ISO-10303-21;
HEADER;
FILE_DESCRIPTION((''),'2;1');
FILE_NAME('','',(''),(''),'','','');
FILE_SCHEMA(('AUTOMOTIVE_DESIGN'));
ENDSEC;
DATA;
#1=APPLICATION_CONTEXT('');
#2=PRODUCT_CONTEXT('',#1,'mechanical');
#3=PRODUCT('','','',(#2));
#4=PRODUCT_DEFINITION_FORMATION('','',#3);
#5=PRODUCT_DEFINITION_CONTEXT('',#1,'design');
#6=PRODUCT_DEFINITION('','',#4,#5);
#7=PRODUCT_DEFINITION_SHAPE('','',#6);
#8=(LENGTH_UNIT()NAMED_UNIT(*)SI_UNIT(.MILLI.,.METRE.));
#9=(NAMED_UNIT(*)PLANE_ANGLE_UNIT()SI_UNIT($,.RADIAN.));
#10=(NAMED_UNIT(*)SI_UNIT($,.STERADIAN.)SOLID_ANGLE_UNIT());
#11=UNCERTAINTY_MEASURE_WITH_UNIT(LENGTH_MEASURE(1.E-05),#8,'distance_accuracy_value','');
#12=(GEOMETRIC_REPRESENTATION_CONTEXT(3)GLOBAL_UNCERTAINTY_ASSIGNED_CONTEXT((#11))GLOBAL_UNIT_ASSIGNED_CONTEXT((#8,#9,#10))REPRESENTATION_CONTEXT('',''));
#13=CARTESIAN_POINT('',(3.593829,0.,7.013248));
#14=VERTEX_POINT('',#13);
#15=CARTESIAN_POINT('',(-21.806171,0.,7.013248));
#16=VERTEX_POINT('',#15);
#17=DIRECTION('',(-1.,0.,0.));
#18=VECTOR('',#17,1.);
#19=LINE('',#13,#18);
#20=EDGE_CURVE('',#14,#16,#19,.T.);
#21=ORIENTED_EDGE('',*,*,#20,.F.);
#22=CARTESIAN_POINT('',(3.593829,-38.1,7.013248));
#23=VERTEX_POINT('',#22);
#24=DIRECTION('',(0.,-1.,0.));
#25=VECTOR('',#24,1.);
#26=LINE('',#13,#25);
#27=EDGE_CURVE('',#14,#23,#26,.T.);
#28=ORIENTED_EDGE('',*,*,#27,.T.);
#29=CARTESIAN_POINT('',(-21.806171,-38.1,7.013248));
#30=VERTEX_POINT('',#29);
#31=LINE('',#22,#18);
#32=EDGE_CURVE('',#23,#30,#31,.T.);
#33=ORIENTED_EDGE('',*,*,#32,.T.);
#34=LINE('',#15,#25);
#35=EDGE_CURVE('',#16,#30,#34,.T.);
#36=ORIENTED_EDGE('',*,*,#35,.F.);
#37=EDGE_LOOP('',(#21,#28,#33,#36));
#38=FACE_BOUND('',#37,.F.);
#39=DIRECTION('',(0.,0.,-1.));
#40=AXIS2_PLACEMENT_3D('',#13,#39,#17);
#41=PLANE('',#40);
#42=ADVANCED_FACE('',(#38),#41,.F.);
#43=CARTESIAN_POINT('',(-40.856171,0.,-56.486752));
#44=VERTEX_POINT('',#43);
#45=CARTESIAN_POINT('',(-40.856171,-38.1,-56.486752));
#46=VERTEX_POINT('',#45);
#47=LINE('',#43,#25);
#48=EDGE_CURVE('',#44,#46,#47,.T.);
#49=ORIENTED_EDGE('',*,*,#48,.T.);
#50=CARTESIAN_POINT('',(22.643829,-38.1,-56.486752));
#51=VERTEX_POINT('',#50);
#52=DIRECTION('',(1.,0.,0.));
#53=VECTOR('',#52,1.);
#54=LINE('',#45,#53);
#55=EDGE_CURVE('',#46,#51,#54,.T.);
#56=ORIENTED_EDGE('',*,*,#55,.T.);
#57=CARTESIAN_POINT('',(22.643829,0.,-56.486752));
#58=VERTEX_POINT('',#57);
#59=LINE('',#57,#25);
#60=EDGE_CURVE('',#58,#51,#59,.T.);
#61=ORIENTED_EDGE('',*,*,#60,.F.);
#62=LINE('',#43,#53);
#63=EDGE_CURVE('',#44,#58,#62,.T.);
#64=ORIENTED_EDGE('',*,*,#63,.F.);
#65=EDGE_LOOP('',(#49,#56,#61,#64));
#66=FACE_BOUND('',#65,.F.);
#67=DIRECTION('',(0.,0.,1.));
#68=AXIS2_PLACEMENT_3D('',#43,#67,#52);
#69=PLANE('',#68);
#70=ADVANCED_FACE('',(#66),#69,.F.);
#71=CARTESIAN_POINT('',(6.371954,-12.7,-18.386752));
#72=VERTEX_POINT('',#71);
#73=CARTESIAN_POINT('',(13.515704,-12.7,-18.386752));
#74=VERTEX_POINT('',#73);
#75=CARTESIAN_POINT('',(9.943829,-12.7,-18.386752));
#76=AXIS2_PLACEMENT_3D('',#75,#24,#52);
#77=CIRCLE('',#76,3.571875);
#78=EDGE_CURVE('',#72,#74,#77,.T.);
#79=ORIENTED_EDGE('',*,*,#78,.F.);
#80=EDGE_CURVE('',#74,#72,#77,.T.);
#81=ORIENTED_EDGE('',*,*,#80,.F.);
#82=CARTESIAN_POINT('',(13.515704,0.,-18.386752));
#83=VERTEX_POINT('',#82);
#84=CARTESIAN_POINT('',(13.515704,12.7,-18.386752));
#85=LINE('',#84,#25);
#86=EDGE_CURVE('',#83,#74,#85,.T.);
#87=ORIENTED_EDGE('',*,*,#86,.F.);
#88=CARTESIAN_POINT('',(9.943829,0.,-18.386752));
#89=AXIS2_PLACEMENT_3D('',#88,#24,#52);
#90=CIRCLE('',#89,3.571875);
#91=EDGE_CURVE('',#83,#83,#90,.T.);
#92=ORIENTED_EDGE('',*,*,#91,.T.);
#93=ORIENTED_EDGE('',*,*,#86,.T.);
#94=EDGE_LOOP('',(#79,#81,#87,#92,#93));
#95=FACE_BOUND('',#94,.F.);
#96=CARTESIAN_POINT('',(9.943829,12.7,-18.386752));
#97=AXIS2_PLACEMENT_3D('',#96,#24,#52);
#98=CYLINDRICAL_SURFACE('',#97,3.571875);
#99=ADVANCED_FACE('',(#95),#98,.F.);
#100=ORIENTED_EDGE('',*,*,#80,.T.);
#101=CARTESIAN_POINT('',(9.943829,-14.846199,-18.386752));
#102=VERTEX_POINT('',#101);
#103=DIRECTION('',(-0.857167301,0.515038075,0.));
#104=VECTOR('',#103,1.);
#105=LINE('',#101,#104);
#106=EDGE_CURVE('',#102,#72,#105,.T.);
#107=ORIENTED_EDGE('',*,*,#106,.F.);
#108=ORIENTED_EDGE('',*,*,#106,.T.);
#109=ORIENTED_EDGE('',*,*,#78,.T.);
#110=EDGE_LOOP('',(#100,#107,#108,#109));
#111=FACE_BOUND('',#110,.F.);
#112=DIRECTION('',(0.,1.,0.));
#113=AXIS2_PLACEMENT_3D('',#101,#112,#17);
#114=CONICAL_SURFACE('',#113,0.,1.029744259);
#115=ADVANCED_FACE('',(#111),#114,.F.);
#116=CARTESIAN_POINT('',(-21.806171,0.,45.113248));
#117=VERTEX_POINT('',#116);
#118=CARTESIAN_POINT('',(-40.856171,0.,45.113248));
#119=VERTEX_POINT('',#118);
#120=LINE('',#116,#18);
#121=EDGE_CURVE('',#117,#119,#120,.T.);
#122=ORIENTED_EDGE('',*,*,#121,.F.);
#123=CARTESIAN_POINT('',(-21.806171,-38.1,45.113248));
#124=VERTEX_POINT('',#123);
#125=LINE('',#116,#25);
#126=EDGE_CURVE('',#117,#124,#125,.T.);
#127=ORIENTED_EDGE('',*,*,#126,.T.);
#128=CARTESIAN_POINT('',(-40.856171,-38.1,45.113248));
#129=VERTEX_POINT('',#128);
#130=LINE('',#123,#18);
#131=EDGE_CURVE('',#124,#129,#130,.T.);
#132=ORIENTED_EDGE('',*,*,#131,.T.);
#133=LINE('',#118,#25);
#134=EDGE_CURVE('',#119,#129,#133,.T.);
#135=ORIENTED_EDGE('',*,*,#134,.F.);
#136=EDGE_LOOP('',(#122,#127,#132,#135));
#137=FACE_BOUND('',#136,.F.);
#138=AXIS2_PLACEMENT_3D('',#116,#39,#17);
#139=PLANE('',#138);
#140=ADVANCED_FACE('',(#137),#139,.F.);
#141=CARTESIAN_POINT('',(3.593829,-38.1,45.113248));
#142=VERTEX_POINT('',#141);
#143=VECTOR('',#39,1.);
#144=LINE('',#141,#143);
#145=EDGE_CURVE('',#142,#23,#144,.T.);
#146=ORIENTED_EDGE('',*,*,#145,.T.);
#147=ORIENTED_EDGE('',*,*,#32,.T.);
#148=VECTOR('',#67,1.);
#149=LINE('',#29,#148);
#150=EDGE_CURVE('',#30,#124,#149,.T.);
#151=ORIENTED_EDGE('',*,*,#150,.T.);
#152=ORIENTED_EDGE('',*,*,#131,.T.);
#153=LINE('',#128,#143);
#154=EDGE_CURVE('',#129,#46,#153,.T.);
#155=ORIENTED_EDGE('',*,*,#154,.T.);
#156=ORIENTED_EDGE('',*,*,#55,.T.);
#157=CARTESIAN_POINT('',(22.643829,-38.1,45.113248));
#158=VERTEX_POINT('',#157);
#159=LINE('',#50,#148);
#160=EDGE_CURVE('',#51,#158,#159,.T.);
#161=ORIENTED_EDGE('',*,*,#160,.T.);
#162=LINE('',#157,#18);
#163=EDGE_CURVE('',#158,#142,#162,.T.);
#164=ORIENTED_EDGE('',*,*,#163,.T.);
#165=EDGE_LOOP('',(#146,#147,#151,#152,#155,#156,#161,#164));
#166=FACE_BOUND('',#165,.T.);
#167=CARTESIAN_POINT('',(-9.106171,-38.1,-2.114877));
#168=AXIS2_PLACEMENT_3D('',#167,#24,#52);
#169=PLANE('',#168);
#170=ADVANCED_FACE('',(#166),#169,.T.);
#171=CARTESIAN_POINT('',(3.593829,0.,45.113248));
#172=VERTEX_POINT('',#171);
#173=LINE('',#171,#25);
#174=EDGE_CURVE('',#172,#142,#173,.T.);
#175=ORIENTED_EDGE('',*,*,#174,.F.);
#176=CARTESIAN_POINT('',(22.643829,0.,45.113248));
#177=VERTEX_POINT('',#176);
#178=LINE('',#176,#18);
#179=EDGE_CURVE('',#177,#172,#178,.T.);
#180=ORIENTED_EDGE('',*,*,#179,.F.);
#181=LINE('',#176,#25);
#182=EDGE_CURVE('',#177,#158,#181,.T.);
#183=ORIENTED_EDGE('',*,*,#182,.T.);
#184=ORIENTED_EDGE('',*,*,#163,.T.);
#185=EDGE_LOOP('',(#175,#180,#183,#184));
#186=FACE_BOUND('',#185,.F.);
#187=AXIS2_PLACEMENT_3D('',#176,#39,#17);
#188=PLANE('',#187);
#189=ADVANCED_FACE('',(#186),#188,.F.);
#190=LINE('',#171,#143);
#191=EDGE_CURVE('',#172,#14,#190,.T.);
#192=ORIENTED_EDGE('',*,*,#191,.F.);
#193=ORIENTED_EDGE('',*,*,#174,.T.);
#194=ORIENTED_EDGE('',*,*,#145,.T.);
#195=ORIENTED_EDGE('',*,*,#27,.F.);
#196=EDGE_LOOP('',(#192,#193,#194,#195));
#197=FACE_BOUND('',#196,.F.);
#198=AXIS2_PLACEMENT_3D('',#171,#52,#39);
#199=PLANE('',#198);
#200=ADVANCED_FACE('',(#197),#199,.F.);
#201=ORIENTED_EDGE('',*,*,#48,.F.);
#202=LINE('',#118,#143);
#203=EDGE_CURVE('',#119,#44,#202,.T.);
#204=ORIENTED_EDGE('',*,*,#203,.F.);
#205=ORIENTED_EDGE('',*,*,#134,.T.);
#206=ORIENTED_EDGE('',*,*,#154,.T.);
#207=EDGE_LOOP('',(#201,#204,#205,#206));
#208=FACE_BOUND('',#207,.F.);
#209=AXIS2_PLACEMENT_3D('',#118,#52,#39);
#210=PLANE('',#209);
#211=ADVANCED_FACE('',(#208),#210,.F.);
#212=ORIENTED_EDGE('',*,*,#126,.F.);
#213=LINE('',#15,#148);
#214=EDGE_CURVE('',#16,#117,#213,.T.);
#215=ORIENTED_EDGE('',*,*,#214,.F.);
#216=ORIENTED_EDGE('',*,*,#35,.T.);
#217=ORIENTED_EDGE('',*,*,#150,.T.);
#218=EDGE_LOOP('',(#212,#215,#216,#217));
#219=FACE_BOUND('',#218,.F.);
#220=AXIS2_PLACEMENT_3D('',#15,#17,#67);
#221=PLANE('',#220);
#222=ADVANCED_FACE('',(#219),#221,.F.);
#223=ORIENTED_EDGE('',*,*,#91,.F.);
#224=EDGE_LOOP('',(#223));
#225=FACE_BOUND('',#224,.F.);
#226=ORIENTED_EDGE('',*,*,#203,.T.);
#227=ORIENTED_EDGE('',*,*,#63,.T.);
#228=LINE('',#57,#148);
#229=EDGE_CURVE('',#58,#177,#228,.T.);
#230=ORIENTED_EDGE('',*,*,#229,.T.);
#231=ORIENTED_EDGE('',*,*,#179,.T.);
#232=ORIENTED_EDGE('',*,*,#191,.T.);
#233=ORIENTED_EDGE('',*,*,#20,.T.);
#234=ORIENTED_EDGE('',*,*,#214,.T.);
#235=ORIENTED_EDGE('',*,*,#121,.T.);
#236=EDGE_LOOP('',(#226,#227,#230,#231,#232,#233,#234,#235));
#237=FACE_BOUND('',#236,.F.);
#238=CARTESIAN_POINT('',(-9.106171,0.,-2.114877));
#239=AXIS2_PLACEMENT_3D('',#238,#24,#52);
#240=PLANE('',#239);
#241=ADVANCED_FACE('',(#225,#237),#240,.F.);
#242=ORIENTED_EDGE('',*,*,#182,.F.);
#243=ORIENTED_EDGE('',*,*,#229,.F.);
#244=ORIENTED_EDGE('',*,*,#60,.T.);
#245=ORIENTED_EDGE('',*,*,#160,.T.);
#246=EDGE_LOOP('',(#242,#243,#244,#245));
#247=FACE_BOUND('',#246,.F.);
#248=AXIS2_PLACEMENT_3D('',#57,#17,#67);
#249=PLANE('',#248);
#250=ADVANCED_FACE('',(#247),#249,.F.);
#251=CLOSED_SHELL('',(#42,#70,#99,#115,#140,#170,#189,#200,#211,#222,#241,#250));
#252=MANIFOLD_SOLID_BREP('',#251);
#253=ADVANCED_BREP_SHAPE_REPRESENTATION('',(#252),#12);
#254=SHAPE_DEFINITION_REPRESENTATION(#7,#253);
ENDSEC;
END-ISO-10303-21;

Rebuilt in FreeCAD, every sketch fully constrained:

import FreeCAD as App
import Part
import Sketcher

V = App.Vector
Q = App.Units.Quantity

doc = App.newDocument("Part")
params = doc.addObject("Spreadsheet::Sheet", "Params")
for row, (alias, value) in enumerate([
    ("sketch1_width", "1 in"),
    ("sketch1_height", "4 in"),
    ("sketch1_width2", "2.5 in"),
    ("sketch1_height2", "1.5 in"),
    ("pad1_length", "1.5 in"),
    ("sketch2_diameter", "0.28125 in"),
    ("hole_diameter", "0.28125 in"),
    ("hole_depth", "0.5 in"),
], start=1):
    params.set(f"A{row}", alias)
    params.set(f"B{row}", "=" + value)
    params.setAlias(f"B{row}", alias)

body = doc.addObject("PartDesign::Body", "Body")

sketch1 = body.newObject("Sketcher::SketchObject", "Sketch")
sketch1.AttachmentSupport = (doc.getObject("XZ_Plane"), [""])
sketch1.MapMode = "FlatFace"
sketch1.addGeometry(Part.LineSegment(V(-41, 45, 0), V(-41, -56, 0)), False)
sketch1.addGeometry(Part.LineSegment(V(-41, -56, 0), V(23, -56, 0)), False)
sketch1.addGeometry(Part.LineSegment(V(23, -56, 0), V(23, 45, 0)), False)
sketch1.addGeometry(Part.LineSegment(V(23, 45, 0), V(4, 45, 0)), False)
sketch1.addGeometry(Part.LineSegment(V(4, 45, 0), V(4, 7, 0)), False)
sketch1.addGeometry(Part.LineSegment(V(4, 7, 0), V(-22, 7, 0)), False)
sketch1.addGeometry(Part.LineSegment(V(-22, 7, 0), V(-22, 45, 0)), False)
sketch1.addGeometry(Part.LineSegment(V(-22, 45, 0), V(-41, 45, 0)), False)
sketch1.addConstraint(Sketcher.Constraint("Coincident", 0, 2, 1, 1))
sketch1.addConstraint(Sketcher.Constraint("Coincident", 1, 2, 2, 1))
sketch1.addConstraint(Sketcher.Constraint("Coincident", 2, 2, 3, 1))
sketch1.addConstraint(Sketcher.Constraint("Coincident", 3, 2, 4, 1))
sketch1.addConstraint(Sketcher.Constraint("Coincident", 4, 2, 5, 1))
sketch1.addConstraint(Sketcher.Constraint("Coincident", 5, 2, 6, 1))
sketch1.addConstraint(Sketcher.Constraint("Coincident", 6, 2, 7, 1))
sketch1.addConstraint(Sketcher.Constraint("Coincident", 7, 2, 0, 1))
sketch1.addConstraint(Sketcher.Constraint("Vertical", 0))
sketch1.addConstraint(Sketcher.Constraint("Horizontal", 1))
sketch1.addConstraint(Sketcher.Constraint("Vertical", 2))
sketch1.addConstraint(Sketcher.Constraint("Horizontal", 3))
sketch1.addConstraint(Sketcher.Constraint("Vertical", 4))
sketch1.addConstraint(Sketcher.Constraint("Horizontal", 5))
sketch1.addConstraint(Sketcher.Constraint("Vertical", 6))
sketch1.addConstraint(Sketcher.Constraint("Horizontal", 7))
sketch1.addConstraint(Sketcher.Constraint("Horizontal", 3, 2, 6, 2))
sketch1.addConstraint(Sketcher.Constraint("Equal", 3, 7))
sketch1.addConstraint(Sketcher.Constraint("DistanceX", 5, 2, 5, 1, Q("1 in")))
sketch1.addConstraint(Sketcher.Constraint("DistanceY", 0, 2, 0, 1, Q("4 in")))
sketch1.addConstraint(Sketcher.Constraint("DistanceX", 1, 1, 1, 2, Q("2.5 in")))
sketch1.addConstraint(Sketcher.Constraint("DistanceY", 4, 2, 4, 1, Q("1.5 in")))
sketch1.addConstraint(Sketcher.Constraint("DistanceX", 0, 2, -1, 1, Q("40.856171 mm")))
sketch1.addConstraint(Sketcher.Constraint("DistanceY", 0, 2, -1, 1, Q("56.486752 mm")))
sketch1.setExpression("Constraints[18]", "Params.sketch1_width")
sketch1.setExpression("Constraints[19]", "Params.sketch1_height")
sketch1.setExpression("Constraints[20]", "Params.sketch1_width2")
sketch1.setExpression("Constraints[21]", "Params.sketch1_height2")
pad1 = body.newObject("PartDesign::Pad", "Pad")
pad1.Profile = sketch1
pad1.setExpression("Length", "Params.pad1_length")

sketch2 = body.newObject("Sketcher::SketchObject", "Sketch001")
sketch2.AttachmentSupport = (doc.getObject("XZ_Plane"), [""])
sketch2.MapMode = "FlatFace"
sketch2.addGeometry(Part.Circle(V(9.9, -18.4, 0), V(0, 0, 1), 3.6), False)
sketch2.addConstraint(Sketcher.Constraint("Diameter", 0, Q("0.28125 in")))
sketch2.addConstraint(Sketcher.Constraint("DistanceX", -1, 1, 0, 3, Q("9.943829 mm")))
sketch2.addConstraint(Sketcher.Constraint("DistanceY", 0, 3, -1, 1, Q("18.386752 mm")))
sketch2.setExpression("Constraints[0]", "Params.sketch2_diameter")
doc.recompute()
hole = body.newObject("PartDesign::Hole", "Hole")
hole.Profile = sketch2
hole.ThreadType = "None"
hole.setExpression("Diameter", "Params.hole_diameter")
hole.DepthType = "Dimension"
hole.setExpression("Depth", "Params.hole_depth")
hole.DrillPoint = "Angled"
hole.DrillPointAngle = 118
hole.Reversed = True

doc.recompute()
